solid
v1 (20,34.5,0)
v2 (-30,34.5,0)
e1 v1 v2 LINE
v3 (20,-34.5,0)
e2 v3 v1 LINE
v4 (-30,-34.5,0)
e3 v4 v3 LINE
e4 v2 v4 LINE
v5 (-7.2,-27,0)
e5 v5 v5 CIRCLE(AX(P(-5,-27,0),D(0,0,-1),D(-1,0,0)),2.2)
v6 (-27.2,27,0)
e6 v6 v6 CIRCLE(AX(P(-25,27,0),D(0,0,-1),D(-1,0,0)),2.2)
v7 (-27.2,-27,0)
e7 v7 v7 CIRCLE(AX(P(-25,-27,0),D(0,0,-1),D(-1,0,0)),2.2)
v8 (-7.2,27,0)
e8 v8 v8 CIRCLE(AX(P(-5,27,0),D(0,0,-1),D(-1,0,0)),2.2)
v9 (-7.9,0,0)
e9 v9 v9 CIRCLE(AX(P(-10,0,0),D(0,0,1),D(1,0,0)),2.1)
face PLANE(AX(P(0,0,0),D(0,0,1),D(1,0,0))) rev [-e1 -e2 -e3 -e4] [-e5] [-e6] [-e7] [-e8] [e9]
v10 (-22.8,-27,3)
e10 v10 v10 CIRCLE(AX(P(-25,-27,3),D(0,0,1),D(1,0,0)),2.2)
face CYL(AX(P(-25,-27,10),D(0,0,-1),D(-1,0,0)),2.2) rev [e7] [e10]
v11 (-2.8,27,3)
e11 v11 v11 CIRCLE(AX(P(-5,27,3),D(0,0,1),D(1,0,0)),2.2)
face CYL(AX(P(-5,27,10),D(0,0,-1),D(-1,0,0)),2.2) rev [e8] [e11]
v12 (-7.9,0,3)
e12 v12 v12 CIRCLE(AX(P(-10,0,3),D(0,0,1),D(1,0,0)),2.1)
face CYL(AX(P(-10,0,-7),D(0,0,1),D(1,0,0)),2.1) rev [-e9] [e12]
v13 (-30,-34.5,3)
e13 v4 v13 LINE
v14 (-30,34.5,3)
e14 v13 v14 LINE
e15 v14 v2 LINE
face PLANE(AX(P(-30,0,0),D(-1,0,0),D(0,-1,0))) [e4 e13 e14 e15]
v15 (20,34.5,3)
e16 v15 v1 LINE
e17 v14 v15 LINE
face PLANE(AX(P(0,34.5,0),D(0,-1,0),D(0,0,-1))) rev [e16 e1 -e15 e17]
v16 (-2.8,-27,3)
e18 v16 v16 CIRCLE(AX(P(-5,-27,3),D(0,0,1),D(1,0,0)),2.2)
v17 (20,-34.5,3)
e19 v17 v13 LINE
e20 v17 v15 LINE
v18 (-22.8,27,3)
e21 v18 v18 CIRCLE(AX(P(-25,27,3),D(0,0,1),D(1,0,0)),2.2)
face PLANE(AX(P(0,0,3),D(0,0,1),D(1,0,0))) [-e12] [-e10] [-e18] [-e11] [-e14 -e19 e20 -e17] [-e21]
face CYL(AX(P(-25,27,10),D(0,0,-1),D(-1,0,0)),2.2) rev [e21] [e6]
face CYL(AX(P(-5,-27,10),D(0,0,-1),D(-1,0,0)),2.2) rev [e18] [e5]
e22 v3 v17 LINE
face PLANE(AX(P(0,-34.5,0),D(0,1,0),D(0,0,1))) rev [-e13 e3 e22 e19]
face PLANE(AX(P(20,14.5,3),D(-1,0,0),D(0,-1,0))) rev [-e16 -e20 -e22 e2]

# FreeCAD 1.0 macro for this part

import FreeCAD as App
import Part
import Sketcher


def add_polygon(sketch, points):
    """Adds a closed chain of lines whose ends are joined by coincident constraints."""
    first, n = sketch.GeometryCount, len(points)
    for a, b in zip(points, points[1:] + points[:1]):
        sketch.addGeometry(Part.LineSegment(App.Vector(*a, 0), App.Vector(*b, 0)), False)
    for i in range(n):
        sketch.addConstraint(Sketcher.Constraint("Coincident", first + i, 2, first + (i + 1) % n, 1))

doc = App.newDocument("Part")
body = doc.addObject("PartDesign::Body", "Body")

sketch1 = doc.addObject("Sketcher::SketchObject", "Sketch")
body.addObject(sketch1)
sketch1.AttachmentSupport = (doc.XY_Plane, [""])
sketch1.MapMode = "FlatFace"
add_polygon(sketch1, [(-20, 14), (-20, -14), (20, -14), (20, 14)])
sketch1.addConstraint([
    Sketcher.Constraint("Vertical", 0),
    Sketcher.Constraint("Horizontal", 1),
    Sketcher.Constraint("Vertical", 2),
    Sketcher.Constraint("Horizontal", 3),
    Sketcher.Constraint("Symmetric", 0, 2, 2, 2, -1, 1),
    Sketcher.Constraint("DistanceX", 1, 1, 1, 2, 40.0),
    Sketcher.Constraint("DistanceY", 0, 2, 0, 1, 29.0),
])
pad1 = doc.addObject("PartDesign::Pad", "Pad")
body.addObject(pad1)
pad1.Profile = sketch1
pad1.Length = 3

sketch2 = doc.addObject("Sketcher::SketchObject", "Sketch001")
body.addObject(sketch2)
sketch2.AttachmentSupport = (doc.XZ_Plane, [""])
sketch2.MapMode = "FlatFace"
sketch2.AttachmentOffset = App.Placement(App.Vector(0, 0, 14.5), App.Rotation())
add_polygon(sketch2, [(20, 0), (20, 3), (-20, 3), (-20, 0)])
sketch2.addConstraint([
    Sketcher.Constraint("Vertical", 0),
    Sketcher.Constraint("Horizontal", 1),
    Sketcher.Constraint("Vertical", 2),
    Sketcher.Constraint("Horizontal", 3),
    Sketcher.Constraint("Symmetric", 2, 2, 3, 2, -1, 1),
    Sketcher.Constraint("DistanceX", 1, 2, 1, 1, 40.0),
    Sketcher.Constraint("DistanceY", 0, 1, 0, 2, 3.0),
])
pad2 = doc.addObject("PartDesign::Pad", "Pad001")
body.addObject(pad2)
pad2.Profile = sketch2
pad2.Length = 3

sketch3 = doc.addObject("Sketcher::SketchObject", "Sketch002")
body.addObject(sketch3)
sketch3.AttachmentSupport = (doc.XZ_Plane, [""])
sketch3.MapMode = "FlatFace"
sketch3.AttachmentOffset = App.Placement(App.Vector(0, 0, -14.5), App.Rotation())
add_polygon(sketch3, [(-20, 0), (-20, 3), (20, 3), (20, 0)])
sketch3.addConstraint([
    Sketcher.Constraint("Vertical", 0),
    Sketcher.Constraint("Horizontal", 1),
    Sketcher.Constraint("Vertical", 2),
    Sketcher.Constraint("Horizontal", 3),
    Sketcher.Constraint("Symmetric", 2, 2, 3, 2, -1, 1),
    Sketcher.Constraint("DistanceX", 1, 1, 1, 2, 40.0),
    Sketcher.Constraint("DistanceY", 0, 1, 0, 2, 3.0),
])
pad3 = doc.addObject("PartDesign::Pad", "Pad002")
body.addObject(pad3)
pad3.Profile = sketch3
pad3.Length = 3
pad3.Reversed = True

sketch4 = doc.addObject("Sketcher::SketchObject", "Sketch003")
body.addObject(sketch4)
sketch4.AttachmentSupport = (doc.XZ_Plane, [""])
sketch4.MapMode = "FlatFace"
sketch4.AttachmentOffset = App.Placement(App.Vector(0, 0, 17.5), App.Rotation())
add_polygon(sketch4, [(-20, 3), (-20, 0), (20, 0), (20, 3)])
sketch4.addConstraint([
    Sketcher.Constraint("Vertical", 0),
    Sketcher.Constraint("Horizontal", 1),
    Sketcher.Constraint("Vertical", 2),
    Sketcher.Constraint("Horizontal", 3),
    Sketcher.Constraint("Symmetric", 0, 2, 1, 2, -1, 1),
    Sketcher.Constraint("DistanceX", 1, 1, 1, 2, 40.0),
    Sketcher.Constraint("DistanceY", 0, 2, 0, 1, 3.0),
])
pad4 = doc.addObject("PartDesign::Pad", "Pad003")
body.addObject(pad4)
pad4.Profile = sketch4
pad4.Length = 7

sketch5 = doc.addObject("Sketcher::SketchObject", "Sketch004")
body.addObject(sketch5)
sketch5.AttachmentSupport = (doc.XZ_Plane, [""])
sketch5.MapMode = "FlatFace"
sketch5.AttachmentOffset = App.Placement(App.Vector(0, 0, -17.5), App.Rotation())
add_polygon(sketch5, [(-20, 0), (-20, 3), (20, 3), (20, 0)])
sketch5.addConstraint([
    Sketcher.Constraint("Vertical", 0),
    Sketcher.Constraint("Horizontal", 1),
    Sketcher.Constraint("Vertical", 2),
    Sketcher.Constraint("Horizontal", 3),
    Sketcher.Constraint("Symmetric", 2, 2, 3, 2, -1, 1),
    Sketcher.Constraint("DistanceX", 1, 1, 1, 2, 40.0),
    Sketcher.Constraint("DistanceY", 0, 1, 0, 2, 3.0),
])
pad5 = doc.addObject("PartDesign::Pad", "Pad004")
body.addObject(pad5)
pad5.Profile = sketch5
pad5.Length = 7
pad5.Reversed = True

sketch6 = doc.addObject("Sketcher::SketchObject", "Sketch005")
body.addObject(sketch6)
sketch6.AttachmentSupport = (doc.XZ_Plane, [""])
sketch6.MapMode = "FlatFace"
sketch6.AttachmentOffset = App.Placement(App.Vector(0, 0, -24.5), App.Rotation())
add_polygon(sketch6, [(-20, 0), (-20, 3), (20, 3), (20, 0)])
sketch6.addConstraint([
    Sketcher.Constraint("Vertical", 0),
    Sketcher.Constraint("Horizontal", 1),
    Sketcher.Constraint("Vertical", 2),
    Sketcher.Constraint("Horizontal", 3),
    Sketcher.Constraint("Symmetric", 2, 2, 3, 2, -1, 1),
    Sketcher.Constraint("DistanceX", 1, 1, 1, 2, 40.0),
    Sketcher.Constraint("DistanceY", 0, 1, 0, 2, 3.0),
])
pad6 = doc.addObject("PartDesign::Pad", "Pad005")
body.addObject(pad6)
pad6.Profile = sketch6
pad6.Length = 10
pad6.Reversed = True

sketch7 = doc.addObject("Sketcher::SketchObject", "Sketch006")
body.addObject(sketch7)
sketch7.AttachmentSupport = (doc.XZ_Plane, [""])
sketch7.MapMode = "FlatFace"
sketch7.AttachmentOffset = App.Placement(App.Vector(0, 0, 24.5), App.Rotation())
add_polygon(sketch7, [(-20, 3), (-20, 0), (20, 0), (20, 3)])
sketch7.addConstraint([
    Sketcher.Constraint("Vertical", 0),
    Sketcher.Constraint("Horizontal", 1),
    Sketcher.Constraint("Vertical", 2),
    Sketcher.Constraint("Horizontal", 3),
    Sketcher.Constraint("Symmetric", 0, 2, 1, 2, -1, 1),
    Sketcher.Constraint("DistanceX", 1, 1, 1, 2, 40.0),
    Sketcher.Constraint("DistanceY", 0, 2, 0, 1, 3.0),
])
pad7 = doc.addObject("PartDesign::Pad", "Pad006")
body.addObject(pad7)
pad7.Profile = sketch7
pad7.Length = 10

sketch8 = doc.addObject("Sketcher::SketchObject", "Sketch007")
body.addObject(sketch8)
sketch8.AttachmentSupport = (doc.YZ_Plane, [""])
sketch8.MapMode = "FlatFace"
sketch8.AttachmentOffset = App.Placement(App.Vector(0, 0, -20), App.Rotation())
add_polygon(sketch8, [(34.5, 0), (-34.5, 0), (-34.5, 3), (34.5, 3)])
sketch8.addConstraint([
    Sketcher.Constraint("Horizontal", 0),
    Sketcher.Constraint("Vertical", 1),
    Sketcher.Constraint("Horizontal", 2),
    Sketcher.Constraint("Vertical", 3),
    Sketcher.Constraint("Symmetric", 0, 2, 3, 2, -1, 1),
    Sketcher.Constraint("DistanceX", 0, 2, 0, 1, 69.0),
    Sketcher.Constraint("DistanceY", 1, 1, 1, 2, 3.0),
])
pad8 = doc.addObject("PartDesign::Pad", "Pad007")
body.addObject(pad8)
pad8.Profile = sketch8
pad8.Length = 30
pad8.Reversed = True

sketch9 = doc.addObject("Sketcher::SketchObject", "Sketch008")
body.addObject(sketch9)
sketch9.AttachmentSupport = (doc.XY_Plane, [""])
sketch9.MapMode = "FlatFace"
sketch9.AttachmentOffset = App.Placement(App.Vector(0, 0, 3), App.Rotation())
sketch9.addGeometry(Part.Circle(App.Vector(-10, 0, 0), App.Vector(0, 0, 1), 2.1), False)
sketch9.addConstraint([
    Sketcher.Constraint("PointOnObject", 0, 3, -1),
    Sketcher.Constraint("Diameter", 0, 4.2),
    Sketcher.Constraint("DistanceX", 0, 3, -1, 1, 10.0),
])
pocket1 = doc.addObject("PartDesign::Pocket", "Pocket")
body.addObject(pocket1)
pocket1.Profile = sketch9
pocket1.Length = 10

sketch10 = doc.addObject("Sketcher::SketchObject", "Sketch009")
body.addObject(sketch10)
sketch10.AttachmentSupport = (doc.YZ_Plane, [""])
sketch10.MapMode = "FlatFace"
sketch10.AttachmentOffset = App.Placement(App.Vector(0, 0, -50), App.Rotation())
add_polygon(sketch10, [(34.5, 0), (-34.5, 0), (-34.5, 3), (34.5, 3)])
sketch10.addConstraint([
    Sketcher.Constraint("Horizontal", 0),
    Sketcher.Constraint("Vertical", 1),
    Sketcher.Constraint("Horizontal", 2),
    Sketcher.Constraint("Vertical", 3),
    Sketcher.Constraint("Symmetric", 0, 2, 3, 2, -1, 1),
    Sketcher.Constraint("DistanceX", 0, 2, 0, 1, 69.0),
    Sketcher.Constraint("DistanceY", 1, 1, 1, 2, 3.0),
])
pocket2 = doc.addObject("PartDesign::Pocket", "Pocket001")
body.addObject(pocket2)
pocket2.Profile = sketch10
pocket2.Length = 20
pocket2.Reversed = True

sketch11 = doc.addObject("Sketcher::SketchObject", "Sketch010")
body.addObject(sketch11)
sketch11.AttachmentSupport = (doc.XY_Plane, [""])
sketch11.MapMode = "FlatFace"
sketch11.addGeometry([
    Part.Circle(App.Vector(-5, 27, 0), App.Vector(0, 0, 1), 2.2),
    Part.Circle(App.Vector(-25, 27, 0), App.Vector(0, 0, 1), 2.2),
    Part.Circle(App.Vector(-5, -27, 0), App.Vector(0, 0, 1), 2.2),
    Part.Circle(App.Vector(-25, -27, 0), App.Vector(0, 0, 1), 2.2),
], False)
sketch11.addConstraint([
    Sketcher.Constraint("Equal", 0, 1),
    Sketcher.Constraint("Equal", 1, 2),
    Sketcher.Constraint("Equal", 2, 3),
    Sketcher.Constraint("Symmetric", 0, 3, 2, 3, -1),
    Sketcher.Constraint("Symmetric", 1, 3, 3, 3, -1),
    Sketcher.Constraint("Horizontal", 0, 3, 1, 3),
    Sketcher.Constraint("Diameter", 0, 4.4),
    Sketcher.Constraint("DistanceX", 0, 3, -1, 1, 5.0),
    Sketcher.Constraint("DistanceY", -1, 1, 0, 3, 27.0),
    Sketcher.Constraint("DistanceX", 1, 3, -1, 1, 25.0),
])
pocket3 = doc.addObject("PartDesign::Pocket", "Pocket002")
body.addObject(pocket3)
pocket3.Profile = sketch11
pocket3.Length = 10
pocket3.Reversed = True

doc.recompute()
